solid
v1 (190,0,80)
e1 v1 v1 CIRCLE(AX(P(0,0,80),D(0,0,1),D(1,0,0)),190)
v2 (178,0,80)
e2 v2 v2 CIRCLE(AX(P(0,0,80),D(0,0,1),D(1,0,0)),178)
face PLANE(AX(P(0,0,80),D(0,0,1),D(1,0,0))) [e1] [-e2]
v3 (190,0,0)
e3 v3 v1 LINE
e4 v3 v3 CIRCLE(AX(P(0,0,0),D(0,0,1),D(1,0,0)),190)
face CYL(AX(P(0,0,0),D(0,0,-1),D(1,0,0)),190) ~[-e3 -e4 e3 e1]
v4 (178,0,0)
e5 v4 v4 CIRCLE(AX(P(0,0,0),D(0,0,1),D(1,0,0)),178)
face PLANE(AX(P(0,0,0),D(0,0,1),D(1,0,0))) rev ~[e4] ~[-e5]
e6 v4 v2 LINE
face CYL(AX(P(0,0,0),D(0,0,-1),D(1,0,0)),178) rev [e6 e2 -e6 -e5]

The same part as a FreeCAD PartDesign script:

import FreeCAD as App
import Part
import Sketcher
Q = App.Units.Quantity

doc = App.newDocument("Part")
body = doc.addObject("PartDesign::Body", "Body")

# Sketch on XY plane
sketch1 = doc.addObject("Sketcher::SketchObject", "Sketch")
body.addObject(sketch1)
sketch1.AttachmentSupport = (doc.XY_Plane, [""])
sketch1.MapMode = "FlatFace"
sketch1.addGeometry(Part.Circle(App.Vector(0, 0, 0), App.Vector(0, 0, 1), 190), False)
sketch1.addGeometry(Part.Circle(App.Vector(0, 0, 0), App.Vector(0, 0, 1), 178), False)
sketch1.addConstraint(Sketcher.Constraint("Coincident", 0, 3, -1, 1))
sketch1.addConstraint(Sketcher.Constraint("Coincident", 1, 3, -1, 1))
sketch1.addConstraint(Sketcher.Constraint("Diameter", 0, Q("380 mm")))
sketch1.addConstraint(Sketcher.Constraint("Diameter", 1, Q("356 mm")))
pad1 = doc.addObject("PartDesign::Pad", "Pad")
body.addObject(pad1)
pad1.Profile = sketch1
pad1.Length = 80

doc.recompute()
